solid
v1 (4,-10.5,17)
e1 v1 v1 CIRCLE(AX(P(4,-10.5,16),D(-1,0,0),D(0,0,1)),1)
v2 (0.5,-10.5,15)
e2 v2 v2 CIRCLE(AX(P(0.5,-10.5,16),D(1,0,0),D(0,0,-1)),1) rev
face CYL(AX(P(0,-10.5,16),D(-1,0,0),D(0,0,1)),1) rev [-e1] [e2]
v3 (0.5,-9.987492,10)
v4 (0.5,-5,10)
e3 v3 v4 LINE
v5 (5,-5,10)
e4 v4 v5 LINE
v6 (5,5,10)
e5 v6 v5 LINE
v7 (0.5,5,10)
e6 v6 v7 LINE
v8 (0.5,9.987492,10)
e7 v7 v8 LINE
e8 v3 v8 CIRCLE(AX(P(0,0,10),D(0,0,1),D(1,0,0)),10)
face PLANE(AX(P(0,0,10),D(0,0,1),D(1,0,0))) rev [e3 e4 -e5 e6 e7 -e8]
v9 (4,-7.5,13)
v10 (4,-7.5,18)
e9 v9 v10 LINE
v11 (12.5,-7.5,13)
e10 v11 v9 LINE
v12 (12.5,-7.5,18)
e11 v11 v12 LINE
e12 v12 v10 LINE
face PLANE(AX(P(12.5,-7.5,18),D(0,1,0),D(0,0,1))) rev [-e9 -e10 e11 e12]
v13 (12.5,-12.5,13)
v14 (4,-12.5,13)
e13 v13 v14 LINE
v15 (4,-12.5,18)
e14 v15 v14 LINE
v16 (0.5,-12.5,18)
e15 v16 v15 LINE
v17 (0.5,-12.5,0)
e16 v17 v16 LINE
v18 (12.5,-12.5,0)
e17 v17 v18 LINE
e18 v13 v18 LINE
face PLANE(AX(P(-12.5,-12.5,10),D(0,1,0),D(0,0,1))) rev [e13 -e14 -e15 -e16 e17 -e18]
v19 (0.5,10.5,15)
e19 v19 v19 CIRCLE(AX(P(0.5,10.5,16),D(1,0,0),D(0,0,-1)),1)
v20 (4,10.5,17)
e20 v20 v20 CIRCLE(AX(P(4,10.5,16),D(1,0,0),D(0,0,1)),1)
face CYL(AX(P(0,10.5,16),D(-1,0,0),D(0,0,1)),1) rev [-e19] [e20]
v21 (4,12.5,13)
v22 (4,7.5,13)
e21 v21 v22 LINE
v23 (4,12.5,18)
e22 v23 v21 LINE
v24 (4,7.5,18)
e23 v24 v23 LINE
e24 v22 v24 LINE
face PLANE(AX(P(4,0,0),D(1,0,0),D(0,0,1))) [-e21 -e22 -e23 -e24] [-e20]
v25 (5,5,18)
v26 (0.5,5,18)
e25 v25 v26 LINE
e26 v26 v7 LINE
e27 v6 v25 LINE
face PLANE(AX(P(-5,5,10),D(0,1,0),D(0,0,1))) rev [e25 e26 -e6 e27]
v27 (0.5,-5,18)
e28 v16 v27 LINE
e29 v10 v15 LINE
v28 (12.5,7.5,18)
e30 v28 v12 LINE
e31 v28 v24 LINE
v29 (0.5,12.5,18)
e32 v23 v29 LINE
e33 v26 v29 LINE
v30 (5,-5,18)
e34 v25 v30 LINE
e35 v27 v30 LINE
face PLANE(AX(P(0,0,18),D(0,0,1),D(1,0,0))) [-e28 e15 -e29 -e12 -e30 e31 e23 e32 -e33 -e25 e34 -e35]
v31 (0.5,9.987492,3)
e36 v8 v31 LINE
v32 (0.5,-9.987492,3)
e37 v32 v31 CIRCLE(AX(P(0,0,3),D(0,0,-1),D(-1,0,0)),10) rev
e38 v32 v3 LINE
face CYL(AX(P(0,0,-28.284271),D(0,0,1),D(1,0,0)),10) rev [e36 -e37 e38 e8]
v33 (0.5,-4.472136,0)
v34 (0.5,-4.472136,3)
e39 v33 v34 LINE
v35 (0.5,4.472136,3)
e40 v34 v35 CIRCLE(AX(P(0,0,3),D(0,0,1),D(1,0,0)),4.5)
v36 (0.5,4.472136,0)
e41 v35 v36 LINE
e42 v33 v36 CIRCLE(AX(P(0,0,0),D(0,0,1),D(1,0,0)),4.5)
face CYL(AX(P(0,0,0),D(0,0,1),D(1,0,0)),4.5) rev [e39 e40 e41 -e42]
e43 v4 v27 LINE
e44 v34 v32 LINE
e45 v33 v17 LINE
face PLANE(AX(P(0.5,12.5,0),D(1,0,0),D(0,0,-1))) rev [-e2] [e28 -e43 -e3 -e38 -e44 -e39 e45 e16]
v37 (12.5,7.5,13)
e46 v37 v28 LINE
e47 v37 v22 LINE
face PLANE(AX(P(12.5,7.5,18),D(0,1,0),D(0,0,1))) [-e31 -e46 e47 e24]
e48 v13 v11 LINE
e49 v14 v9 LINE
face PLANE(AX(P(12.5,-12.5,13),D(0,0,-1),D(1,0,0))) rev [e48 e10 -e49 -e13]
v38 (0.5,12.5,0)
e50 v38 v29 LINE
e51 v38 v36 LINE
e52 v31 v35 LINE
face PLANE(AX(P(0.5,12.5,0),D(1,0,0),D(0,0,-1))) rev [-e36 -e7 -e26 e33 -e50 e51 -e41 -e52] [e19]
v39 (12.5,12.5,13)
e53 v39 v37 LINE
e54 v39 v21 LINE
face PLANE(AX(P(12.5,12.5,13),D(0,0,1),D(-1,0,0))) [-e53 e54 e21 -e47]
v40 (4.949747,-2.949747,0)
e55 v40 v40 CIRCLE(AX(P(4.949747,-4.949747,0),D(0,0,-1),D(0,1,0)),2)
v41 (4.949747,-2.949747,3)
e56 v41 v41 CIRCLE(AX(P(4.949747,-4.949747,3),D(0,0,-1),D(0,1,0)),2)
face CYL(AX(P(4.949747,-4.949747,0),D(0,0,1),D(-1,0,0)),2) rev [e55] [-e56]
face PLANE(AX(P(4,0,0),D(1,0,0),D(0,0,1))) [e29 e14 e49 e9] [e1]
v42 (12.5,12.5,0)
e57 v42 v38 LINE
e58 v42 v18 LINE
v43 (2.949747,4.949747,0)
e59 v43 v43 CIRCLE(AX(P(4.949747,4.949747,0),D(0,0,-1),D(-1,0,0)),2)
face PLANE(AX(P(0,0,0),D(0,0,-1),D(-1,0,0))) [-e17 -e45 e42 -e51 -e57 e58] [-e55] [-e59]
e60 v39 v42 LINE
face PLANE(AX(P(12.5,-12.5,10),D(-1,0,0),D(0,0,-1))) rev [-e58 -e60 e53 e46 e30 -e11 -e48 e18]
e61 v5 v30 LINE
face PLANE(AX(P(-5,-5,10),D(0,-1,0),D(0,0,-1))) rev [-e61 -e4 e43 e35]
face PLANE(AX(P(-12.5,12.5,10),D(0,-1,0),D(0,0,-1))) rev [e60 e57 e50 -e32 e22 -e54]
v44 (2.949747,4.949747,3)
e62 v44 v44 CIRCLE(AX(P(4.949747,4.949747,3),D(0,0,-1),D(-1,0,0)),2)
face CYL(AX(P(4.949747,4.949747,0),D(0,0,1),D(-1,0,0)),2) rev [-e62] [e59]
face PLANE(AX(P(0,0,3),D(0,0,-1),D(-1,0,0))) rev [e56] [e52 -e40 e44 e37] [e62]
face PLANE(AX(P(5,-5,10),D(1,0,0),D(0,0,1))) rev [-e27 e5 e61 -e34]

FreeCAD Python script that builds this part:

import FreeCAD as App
import Part
import Sketcher

doc = App.newDocument("Part")
body = doc.addObject("PartDesign::Body", "Body")

sketch1 = body.newObject("Sketcher::SketchObject", "Sketch")
sketch1.AttachmentSupport = (doc.getObject("XY_Plane"), [""])
sketch1.MapMode = "FlatFace"
sketch1.addGeometry([
    Part.LineSegment(App.Vector(-12, 12, 0), App.Vector(-12, -12, 0)),
    Part.LineSegment(App.Vector(-12, -12, 0), App.Vector(12, -12, 0)),
    Part.LineSegment(App.Vector(12, -12, 0), App.Vector(12, 12, 0)),
    Part.LineSegment(App.Vector(12, 12, 0), App.Vector(-12, 12, 0)),
], False)
sketch1.addConstraint([
    Sketcher.Constraint("Coincident", 0, 2, 1, 1),
    Sketcher.Constraint("Coincident", 1, 2, 2, 1),
    Sketcher.Constraint("Coincident", 2, 2, 3, 1),
    Sketcher.Constraint("Coincident", 3, 2, 0, 1),
    Sketcher.Constraint("Vertical", 0),
    Sketcher.Constraint("Horizontal", 1),
    Sketcher.Constraint("Vertical", 2),
    Sketcher.Constraint("Horizontal", 3),
    Sketcher.Constraint("Symmetric", 0, 2, 2, 2, -1, 1),
    Sketcher.Constraint("Equal", 3, 0),
    Sketcher.Constraint("DistanceX", 1, 1, 1, 2, 25.0),
])
pad1 = body.newObject("PartDesign::Pad", "Pad")
pad1.Profile = sketch1
pad1.Length = 10

sketch2 = body.newObject("Sketcher::SketchObject", "Sketch001")
sketch2.AttachmentSupport = (doc.getObject("XY_Plane"), [""])
sketch2.MapMode = "FlatFace"
sketch2.AttachmentOffset = App.Placement(App.Vector(0, 0, 10), App.Rotation())
sketch2.addGeometry(Part.Circle(App.Vector(0, 0, 0), App.Vector(0, 0, 1), 10), False)
sketch2.addConstraint([
    Sketcher.Constraint("Coincident", 0, 3, -1, 1),
    Sketcher.Constraint("Diameter", 0, 20.0),
])
pocket1 = body.newObject("PartDesign::Pocket", "Pocket")
pocket1.Profile = sketch2
pocket1.Length = 7

sketch3 = body.newObject("Sketcher::SketchObject", "Sketch002")
sketch3.AttachmentSupport = (doc.getObject("XY_Plane"), [""])
sketch3.MapMode = "FlatFace"
sketch3.AttachmentOffset = App.Placement(App.Vector(0, 0, 3), App.Rotation())
sketch3.addGeometry(Part.Circle(App.Vector(0, 0, 0), App.Vector(0, 0, 1), 4.5), False)
sketch3.addConstraint([
    Sketcher.Constraint("Coincident", 0, 3, -1, 1),
    Sketcher.Constraint("Diameter", 0, 9.0),
])
pocket2 = body.newObject("PartDesign::Pocket", "Pocket001")
pocket2.Profile = sketch3
pocket2.Type = "ThroughAll"

sketch4 = body.newObject("Sketcher::SketchObject", "Sketch003")
sketch4.AttachmentSupport = (doc.getObject("XY_Plane"), [""])
sketch4.MapMode = "FlatFace"
sketch4.AttachmentOffset = App.Placement(App.Vector(0, 0, 3), App.Rotation())
sketch4.addGeometry(Part.Circle(App.Vector(-4.9, 4.9, 0), App.Vector(0, 0, 1), 2), False)
sketch4.addConstraint([
    Sketcher.Constraint("Diameter", 0, 4.0),
    Sketcher.Constraint("DistanceX", 0, 3, -1, 1, 4.949747),
    Sketcher.Constraint("DistanceY", -1, 1, 0, 3, 4.949747),
])
pocket3 = body.newObject("PartDesign::Pocket", "Pocket002")
pocket3.Profile = sketch4
pocket3.Type = "ThroughAll"
doc.recompute()

polarpattern = body.newObject("PartDesign::PolarPattern", "PolarPattern")
polarpattern.Originals = [pocket3]
polarpattern.Axis = (doc.getObject("Z_Axis"), [""])
polarpattern.Angle = 360
polarpattern.Occurrences = 4
body.Tip = polarpattern

sketch5 = body.newObject("Sketcher::SketchObject", "Sketch004")
sketch5.AttachmentSupport = (doc.getObject("XY_Plane"), [""])
sketch5.MapMode = "FlatFace"
sketch5.AttachmentOffset = App.Placement(App.Vector(0, 0, 10), App.Rotation())
sketch5.addGeometry([
    Part.LineSegment(App.Vector(-12, 12, 0), App.Vector(-12, -12, 0)),
    Part.LineSegment(App.Vector(-12, -12, 0), App.Vector(12, -12, 0)),
    Part.LineSegment(App.Vector(12, -12, 0), App.Vector(12, 12, 0)),
    Part.LineSegment(App.Vector(12, 12, 0), App.Vector(-12, 12, 0)),
], False)
sketch5.addConstraint([
    Sketcher.Constraint("Coincident", 0, 2, 1, 1),
    Sketcher.Constraint("Coincident", 1, 2, 2, 1),
    Sketcher.Constraint("Coincident", 2, 2, 3, 1),
    Sketcher.Constraint("Coincident", 3, 2, 0, 1),
    Sketcher.Constraint("Vertical", 0),
    Sketcher.Constraint("Horizontal", 1),
    Sketcher.Constraint("Vertical", 2),
    Sketcher.Constraint("Horizontal", 3),
    Sketcher.Constraint("Symmetric", 0, 2, 2, 2, -1, 1),
    Sketcher.Constraint("Equal", 3, 0),
    Sketcher.Constraint("DistanceX", 1, 1, 1, 2, 25.0),
])
pad2 = body.newObject("PartDesign::Pad", "Pad001")
pad2.Profile = sketch5
pad2.Length = 8

sketch6 = body.newObject("Sketcher::SketchObject", "Sketch005")
sketch6.AttachmentSupport = (doc.getObject("XY_Plane"), [""])
sketch6.MapMode = "FlatFace"
sketch6.AttachmentOffset = App.Placement(App.Vector(0, 0, 18), App.Rotation())
sketch6.addGeometry([
    Part.LineSegment(App.Vector(-5, 5, 0), App.Vector(-5, -5, 0)),
    Part.LineSegment(App.Vector(-5, -5, 0), App.Vector(5, -5, 0)),
    Part.LineSegment(App.Vector(5, -5, 0), App.Vector(5, 5, 0)),
    Part.LineSegment(App.Vector(5, 5, 0), App.Vector(-5, 5, 0)),
], False)
sketch6.addConstraint([
    Sketcher.Constraint("Coincident", 0, 2, 1, 1),
    Sketcher.Constraint("Coincident", 1, 2, 2, 1),
    Sketcher.Constraint("Coincident", 2, 2, 3, 1),
    Sketcher.Constraint("Coincident", 3, 2, 0, 1),
    Sketcher.Constraint("Vertical", 0),
    Sketcher.Constraint("Horizontal", 1),
    Sketcher.Constraint("Vertical", 2),
    Sketcher.Constraint("Horizontal", 3),
    Sketcher.Constraint("Symmetric", 0, 2, 2, 2, -1, 1),
    Sketcher.Constraint("Equal", 3, 0),
    Sketcher.Constraint("DistanceX", 1, 1, 1, 2, 10.0),
])
pocket4 = body.newObject("PartDesign::Pocket", "Pocket003")
pocket4.Profile = sketch6
pocket4.Length = 8

sketch7 = body.newObject("Sketcher::SketchObject", "Sketch006")
sketch7.AttachmentSupport = (doc.getObject("XZ_Plane"), [""])
sketch7.MapMode = "FlatFace"
sketch7.AttachmentOffset = App.Placement(App.Vector(0, 0, 12.5), App.Rotation())
sketch7.addGeometry([
    Part.LineSegment(App.Vector(0, 21, 0), App.Vector(0, 0, 0)),
    Part.LineSegment(App.Vector(0, 0, 0), App.Vector(17, 0, 0)),
    Part.LineSegment(App.Vector(17, 0, 0), App.Vector(17, 21, 0)),
    Part.LineSegment(App.Vector(17, 21, 0), App.Vector(0, 21, 0)),
], False)
sketch7.addConstraint([
    Sketcher.Constraint("Coincident", 0, 2, 1, 1),
    Sketcher.Constraint("Coincident", 1, 2, 2, 1),
    Sketcher.Constraint("Coincident", 2, 2, 3, 1),
    Sketcher.Constraint("Coincident", 3, 2, 0, 1),
    Sketcher.Constraint("Vertical", 0),
    Sketcher.Constraint("Horizontal", 1),
    Sketcher.Constraint("Vertical", 2),
    Sketcher.Constraint("Horizontal", 3),
    Sketcher.Constraint("Coincident", 0, 2, -1, 1),
    Sketcher.Constraint("DistanceX", 1, 1, 1, 2, 17.447835),
    Sketcher.Constraint("DistanceY", 0, 2, 0, 1, 20.945056),
])
pocket5 = body.newObject("PartDesign::Pocket", "Pocket004")
pocket5.Profile = sketch7
pocket5.Type = "ThroughAll"

sketch8 = body.newObject("Sketcher::SketchObject", "Sketch007")
sketch8.AttachmentSupport = (doc.getObject("YZ_Plane"), [""])
sketch8.MapMode = "FlatFace"
sketch8.AttachmentOffset = App.Placement(App.Vector(0, 0, -4), App.Rotation())
sketch8.addGeometry([
    Part.LineSegment(App.Vector(-8, 18, 0), App.Vector(-12, 18, 0)),
    Part.LineSegment(App.Vector(-12, 18, 0), App.Vector(-12, 13, 0)),
    Part.LineSegment(App.Vector(-12, 13, 0), App.Vector(-8, 13, 0)),
    Part.LineSegment(App.Vector(-8, 13, 0), App.Vector(-8, 18, 0)),
], False)
sketch8.addConstraint([
    Sketcher.Constraint("Coincident", 0, 2, 1, 1),
    Sketcher.Constraint("Coincident", 1, 2, 2, 1),
    Sketcher.Constraint("Coincident", 2, 2, 3, 1),
    Sketcher.Constraint("Coincident", 3, 2, 0, 1),
    Sketcher.Constraint("Horizontal", 0),
    Sketcher.Constraint("Vertical", 1),
    Sketcher.Constraint("Horizontal", 2),
    Sketcher.Constraint("Vertical", 3),
    Sketcher.Constraint("Equal", 2, 1),
    Sketcher.Constraint("DistanceX", 0, 2, 0, 1, 5.0),
    Sketcher.Constraint("DistanceY", -1, 1, 0, 2, 18.0),
    Sketcher.Constraint("DistanceX", 0, 2, -1, 1, 12.5),
])
pocket6 = body.newObject("PartDesign::Pocket", "Pocket005")
pocket6.Profile = sketch8
pocket6.Type = "ThroughAll"
doc.recompute()

mirrored = body.newObject("PartDesign::Mirrored", "Mirrored")
mirrored.Originals = [pocket6]
mirrored.MirrorPlane = (doc.getObject("XZ_Plane"), [""])
body.Tip = mirrored

sketch9 = body.newObject("Sketcher::SketchObject", "Sketch008")
sketch9.AttachmentSupport = (doc.getObject("YZ_Plane"), [""])
sketch9.MapMode = "FlatFace"
sketch9.AttachmentOffset = App.Placement(App.Vector(0, 0, -4), App.Rotation())
sketch9.addGeometry(Part.Circle(App.Vector(-10.5, 16, 0), App.Vector(0, 0, 1), 1), False)
sketch9.addConstraint([
    Sketcher.Constraint("Diameter", 0, 2.0),
    Sketcher.Constraint("DistanceY", -1, 1, 0, 3, 16.0),
    Sketcher.Constraint("DistanceX", 0, 3, -1, 1, 10.5),
])
pocket7 = body.newObject("PartDesign::Pocket", "Pocket006")
pocket7.Profile = sketch9
pocket7.Type = "ThroughAll"
pocket7.Reversed = True
doc.recompute()

mirrored2 = body.newObject("PartDesign::Mirrored", "Mirrored001")
mirrored2.Originals = [pocket7]
mirrored2.MirrorPlane = (doc.getObject("XZ_Plane"), [""])
body.Tip = mirrored2
body2 = doc.addObject("PartDesign::Body", "Body001")
doc.recompute()

body2.BaseFeature = body
doc.recompute()

mirroring = doc.addObject("Part::Mirroring", "Mirroring")
mirroring.Source = body
mirroring.Base = App.Vector(0, 12.5, 0)
mirroring.Normal = App.Vector(-1, 0, 0)
body3 = doc.addObject("PartDesign::Body", "Body002")
body3.BaseFeature = mirroring
boolean = body2.newObject("PartDesign::Boolean", "Boolean")
boolean.Type = "Fuse"
boolean.addObjects([body3])
doc.recompute()

sketch10 = body2.newObject("Sketcher::SketchObject", "Sketch009")
sketch10.AttachmentSupport = (doc.getObject("XZ_Plane001"), [""])
sketch10.MapMode = "FlatFace"
sketch10.AttachmentOffset = App.Placement(App.Vector(0, 0, 12.5), App.Rotation())
sketch10.addGeometry([
    Part.LineSegment(App.Vector(-16, 21, 0), App.Vector(-16, 0, 0)),
    Part.LineSegment(App.Vector(-16, 0, 0), App.Vector(0, 0, 0)),
    Part.LineSegment(App.Vector(0, 0, 0), App.Vector(0, 21, 0)),
    Part.LineSegment(App.Vector(0, 21, 0), App.Vector(-16, 21, 0)),
], False)
sketch10.addConstraint([
    Sketcher.Constraint("Coincident", 0, 2, 1, 1),
    Sketcher.Constraint("Coincident", 1, 2, 2, 1),
    Sketcher.Constraint("Coincident", 2, 2, 3, 1),
    Sketcher.Constraint("Coincident", 3, 2, 0, 1),
    Sketcher.Constraint("Vertical", 0),
    Sketcher.Constraint("Horizontal", 1),
    Sketcher.Constraint("Vertical", 2),
    Sketcher.Constraint("Horizontal", 3),
    Sketcher.Constraint("PointOnObject", 0, 2, -1),
    Sketcher.Constraint("DistanceX", -1, 1, 1, 2, 0.5),
    Sketcher.Constraint("DistanceY", 0, 2, 0, 1, 21.4474),
    Sketcher.Constraint("DistanceX", 1, 1, 1, 2, 16.881791),
])
pocket8 = body2.newObject("PartDesign::Pocket", "Pocket007")
pocket8.Profile = sketch10
pocket8.Type = "ThroughAll"
mirroring.Visibility = False

doc.recompute()
